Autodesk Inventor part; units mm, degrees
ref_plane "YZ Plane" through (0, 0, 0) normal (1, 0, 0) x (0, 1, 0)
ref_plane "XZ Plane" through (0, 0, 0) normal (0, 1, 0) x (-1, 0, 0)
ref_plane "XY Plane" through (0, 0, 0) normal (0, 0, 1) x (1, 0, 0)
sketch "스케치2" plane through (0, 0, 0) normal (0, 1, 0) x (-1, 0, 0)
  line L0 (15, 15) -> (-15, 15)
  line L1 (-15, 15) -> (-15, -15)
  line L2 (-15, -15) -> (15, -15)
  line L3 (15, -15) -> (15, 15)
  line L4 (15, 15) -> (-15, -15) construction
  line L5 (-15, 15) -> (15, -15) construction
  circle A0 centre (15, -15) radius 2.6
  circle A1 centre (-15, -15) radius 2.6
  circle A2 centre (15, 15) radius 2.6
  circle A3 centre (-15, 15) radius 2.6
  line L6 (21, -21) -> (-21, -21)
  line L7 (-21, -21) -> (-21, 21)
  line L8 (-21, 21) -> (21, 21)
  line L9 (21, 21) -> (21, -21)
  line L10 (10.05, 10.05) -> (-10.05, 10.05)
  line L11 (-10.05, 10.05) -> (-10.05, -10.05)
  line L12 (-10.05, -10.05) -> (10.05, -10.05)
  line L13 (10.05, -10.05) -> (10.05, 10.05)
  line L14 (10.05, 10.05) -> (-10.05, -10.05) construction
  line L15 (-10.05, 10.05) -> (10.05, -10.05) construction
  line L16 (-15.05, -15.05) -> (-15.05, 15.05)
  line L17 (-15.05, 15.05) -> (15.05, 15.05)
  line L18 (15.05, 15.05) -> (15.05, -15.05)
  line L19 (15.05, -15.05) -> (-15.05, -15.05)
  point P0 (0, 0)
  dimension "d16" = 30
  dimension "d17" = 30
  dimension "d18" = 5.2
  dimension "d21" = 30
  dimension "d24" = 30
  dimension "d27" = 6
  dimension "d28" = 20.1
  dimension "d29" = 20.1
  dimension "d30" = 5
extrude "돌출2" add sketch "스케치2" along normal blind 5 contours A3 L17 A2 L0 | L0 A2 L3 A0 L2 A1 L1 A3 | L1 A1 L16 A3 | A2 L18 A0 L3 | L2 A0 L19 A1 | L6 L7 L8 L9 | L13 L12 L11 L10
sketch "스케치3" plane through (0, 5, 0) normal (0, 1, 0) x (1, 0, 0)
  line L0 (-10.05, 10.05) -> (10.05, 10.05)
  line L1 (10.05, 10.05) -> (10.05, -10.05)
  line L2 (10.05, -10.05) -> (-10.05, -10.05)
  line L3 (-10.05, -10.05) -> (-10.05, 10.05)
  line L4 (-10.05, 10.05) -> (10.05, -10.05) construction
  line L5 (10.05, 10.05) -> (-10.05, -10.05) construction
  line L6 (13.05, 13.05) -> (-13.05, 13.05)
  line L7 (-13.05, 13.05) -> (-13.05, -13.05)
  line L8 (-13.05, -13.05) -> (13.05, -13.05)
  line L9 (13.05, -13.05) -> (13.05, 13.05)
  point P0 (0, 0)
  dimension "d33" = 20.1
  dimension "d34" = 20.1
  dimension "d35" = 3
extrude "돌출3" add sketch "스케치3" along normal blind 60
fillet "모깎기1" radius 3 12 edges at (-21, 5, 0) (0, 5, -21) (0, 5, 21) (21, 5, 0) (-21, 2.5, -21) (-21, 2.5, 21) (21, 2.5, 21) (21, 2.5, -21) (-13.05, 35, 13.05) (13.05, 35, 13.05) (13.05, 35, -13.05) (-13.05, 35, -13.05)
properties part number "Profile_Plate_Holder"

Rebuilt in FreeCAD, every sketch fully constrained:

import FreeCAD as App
import Part
import Sketcher

V = App.Vector
Q = App.Units.Quantity


def edges_at(feature, points):
    """Names of the edges that pass closest to the given points."""
    edges = feature.Shape.Edges
    near = lambda p: min(range(len(edges)), key=lambda i: edges[i].distToShape(Part.Vertex(*p))[0])
    return sorted({f"Edge{near(p) + 1}" for p in points})

doc = App.newDocument("Part")
body = doc.addObject("PartDesign::Body", "Body")

sketch1 = body.newObject("Sketcher::SketchObject", "Sketch")
sketch1.AttachmentSupport = (doc.getObject("XZ_Plane"), [""])
sketch1.MapMode = "FlatFace"
sketch1.addGeometry([
    Part.LineSegment(V(21, -21, 0), V(-21, -21, 0)),
    Part.LineSegment(V(-21, -21, 0), V(-21, 21, 0)),
    Part.LineSegment(V(-21, 21, 0), V(21, 21, 0)),
    Part.LineSegment(V(21, 21, 0), V(21, -21, 0)),
    Part.Circle(V(15, 15, 0), V(0, 0, 1), 2.6),
    Part.Circle(V(-15, 15, 0), V(0, 0, 1), 2.6),
    Part.Circle(V(15, -15, 0), V(0, 0, 1), 2.6),
    Part.Circle(V(-15, -15, 0), V(0, 0, 1), 2.6),
], False)
sketch1.addConstraint([
    Sketcher.Constraint("Coincident", 0, 2, 1, 1),
    Sketcher.Constraint("Coincident", 1, 2, 2, 1),
    Sketcher.Constraint("Coincident", 2, 2, 3, 1),
    Sketcher.Constraint("Coincident", 3, 2, 0, 1),
    Sketcher.Constraint("Horizontal", 0),
    Sketcher.Constraint("Vertical", 1),
    Sketcher.Constraint("Horizontal", 2),
    Sketcher.Constraint("Vertical", 3),
    Sketcher.Constraint("Equal", 4, 5),
    Sketcher.Constraint("Equal", 5, 6),
    Sketcher.Constraint("Equal", 6, 7),
    Sketcher.Constraint("Symmetric", 5, 3, 6, 3, -1, 1),
    Sketcher.Constraint("Symmetric", 4, 3, 7, 3, -1, 1),
    Sketcher.Constraint("Symmetric", 0, 2, 2, 2, -1, 1),
    Sketcher.Constraint("Symmetric", 4, 3, 5, 3, -2),
    Sketcher.Constraint("Equal", 2, 1),
    Sketcher.Constraint("Diameter", 4, Q("5.2 mm")),
    Sketcher.Constraint("DistanceX", 5, 3, 4, 3, Q("30 mm")),
    Sketcher.Constraint("DistanceY", 6, 3, 4, 3, Q("30 mm")),
    Sketcher.Constraint("DistanceX", 0, 2, 7, 3, Q("6 mm")),
])
pad1 = body.newObject("PartDesign::Pad", "Pad")
pad1.Profile = sketch1
pad1.Length = 5
pad1.Reversed = True

sketch2 = body.newObject("Sketcher::SketchObject", "Sketch001")
sketch2.AttachmentSupport = (doc.getObject("XZ_Plane"), [""])
sketch2.MapMode = "FlatFace"
sketch2.AttachmentOffset = App.Placement(V(0, 0, -5), App.Rotation())
sketch2.addGeometry([
    Part.LineSegment(V(13, 13, 0), V(13, -13, 0)),
    Part.LineSegment(V(13, -13, 0), V(-13, -13, 0)),
    Part.LineSegment(V(-13, -13, 0), V(-13, 13, 0)),
    Part.LineSegment(V(-13, 13, 0), V(13, 13, 0)),
    Part.LineSegment(V(-10, 10, 0), V(-10, -10, 0)),
    Part.LineSegment(V(-10, -10, 0), V(10, -10, 0)),
    Part.LineSegment(V(10, -10, 0), V(10, 10, 0)),
    Part.LineSegment(V(10, 10, 0), V(-10, 10, 0)),
], False)
sketch2.addConstraint([
    Sketcher.Constraint("Coincident", 0, 2, 1, 1),
    Sketcher.Constraint("Coincident", 1, 2, 2, 1),
    Sketcher.Constraint("Coincident", 2, 2, 3, 1),
    Sketcher.Constraint("Coincident", 3, 2, 0, 1),
    Sketcher.Constraint("Coincident", 4, 2, 5, 1),
    Sketcher.Constraint("Coincident", 5, 2, 6, 1),
    Sketcher.Constraint("Coincident", 6, 2, 7, 1),
    Sketcher.Constraint("Coincident", 7, 2, 4, 1),
    Sketcher.Constraint("Vertical", 0),
    Sketcher.Constraint("Horizontal", 1),
    Sketcher.Constraint("Vertical", 2),
    Sketcher.Constraint("Horizontal", 3),
    Sketcher.Constraint("Vertical", 4),
    Sketcher.Constraint("Horizontal", 5),
    Sketcher.Constraint("Vertical", 6),
    Sketcher.Constraint("Horizontal", 7),
    Sketcher.Constraint("Symmetric", 0, 2, 2, 2, -1, 1),
    Sketcher.Constraint("Symmetric", 4, 2, 6, 2, -1, 1),
    Sketcher.Constraint("Equal", 3, 0),
    Sketcher.Constraint("Equal", 7, 4),
    Sketcher.Constraint("DistanceX", 5, 1, 5, 2, Q("20.1 mm")),
    Sketcher.Constraint("DistanceX", 1, 2, 4, 2, Q("3 mm")),
])
pad2 = body.newObject("PartDesign::Pad", "Pad001")
pad2.Profile = sketch2
pad2.Length = 60
pad2.Reversed = True
doc.recompute()

fillet = body.newObject("PartDesign::Fillet", "Fillet")
fillet.Base = (pad2, edges_at(pad2, [
    (-21, 5, 0),
    (0, 5, -21),
    (0, 5, 21),
    (21, 5, 0),
    (-21, 2.5, -21),
    (-21, 2.5, 21),
    (21, 2.5, 21),
    (21, 2.5, -21),
    (-13.05, 35, 13.05),
    (13.05, 35, 13.05),
    (13.05, 35, -13.05),
    (-13.05, 35, -13.05),
]))
fillet.Radius = 3

doc.recompute()
